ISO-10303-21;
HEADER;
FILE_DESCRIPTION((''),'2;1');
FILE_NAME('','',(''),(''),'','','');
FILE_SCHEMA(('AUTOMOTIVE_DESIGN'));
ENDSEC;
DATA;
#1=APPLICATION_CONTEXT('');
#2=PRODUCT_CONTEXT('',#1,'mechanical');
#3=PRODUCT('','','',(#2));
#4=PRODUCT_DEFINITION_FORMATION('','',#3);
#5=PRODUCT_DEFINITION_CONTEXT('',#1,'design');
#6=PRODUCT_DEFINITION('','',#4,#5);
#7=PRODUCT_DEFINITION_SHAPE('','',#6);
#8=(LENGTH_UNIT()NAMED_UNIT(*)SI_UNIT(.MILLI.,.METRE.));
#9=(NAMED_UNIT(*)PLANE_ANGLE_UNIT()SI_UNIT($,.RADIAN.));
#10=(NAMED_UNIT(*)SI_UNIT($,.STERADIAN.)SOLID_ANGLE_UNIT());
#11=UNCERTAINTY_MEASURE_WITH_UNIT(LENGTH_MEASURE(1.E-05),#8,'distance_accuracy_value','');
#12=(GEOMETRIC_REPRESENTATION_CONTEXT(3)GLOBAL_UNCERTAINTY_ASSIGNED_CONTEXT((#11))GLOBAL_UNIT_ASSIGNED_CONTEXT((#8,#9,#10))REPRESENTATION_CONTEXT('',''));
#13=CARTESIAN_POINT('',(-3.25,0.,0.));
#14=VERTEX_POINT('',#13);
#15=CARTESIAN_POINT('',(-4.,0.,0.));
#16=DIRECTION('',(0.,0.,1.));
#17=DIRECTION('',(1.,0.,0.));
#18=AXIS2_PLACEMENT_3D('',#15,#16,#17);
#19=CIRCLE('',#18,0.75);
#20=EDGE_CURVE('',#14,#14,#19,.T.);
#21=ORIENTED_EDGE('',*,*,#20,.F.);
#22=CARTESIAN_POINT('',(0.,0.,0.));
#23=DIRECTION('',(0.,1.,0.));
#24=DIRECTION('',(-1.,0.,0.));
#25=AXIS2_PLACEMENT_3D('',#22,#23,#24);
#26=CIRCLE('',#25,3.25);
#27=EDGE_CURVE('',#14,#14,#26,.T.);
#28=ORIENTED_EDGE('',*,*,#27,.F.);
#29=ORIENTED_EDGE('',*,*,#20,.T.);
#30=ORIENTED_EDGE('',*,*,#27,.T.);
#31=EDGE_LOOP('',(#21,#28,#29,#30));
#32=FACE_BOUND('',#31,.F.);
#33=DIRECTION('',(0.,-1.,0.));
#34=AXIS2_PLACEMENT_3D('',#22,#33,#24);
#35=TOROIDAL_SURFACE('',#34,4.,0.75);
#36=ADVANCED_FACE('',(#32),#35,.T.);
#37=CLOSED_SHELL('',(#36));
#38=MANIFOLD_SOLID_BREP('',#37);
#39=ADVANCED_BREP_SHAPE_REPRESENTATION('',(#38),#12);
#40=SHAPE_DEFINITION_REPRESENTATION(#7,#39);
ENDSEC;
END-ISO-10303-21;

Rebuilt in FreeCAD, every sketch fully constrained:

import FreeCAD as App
import Part
import Sketcher
Q = App.Units.Quantity

doc = App.newDocument("Part")
body = doc.addObject("PartDesign::Body", "Body")

sketch1 = body.newObject("Sketcher::SketchObject", "Sketch")
sketch1.AttachmentSupport = (doc.getObject("XY_Plane"), [""])
sketch1.MapMode = "FlatFace"
sketch1.addGeometry(Part.Circle(App.Vector(-4, 0, 0), App.Vector(0, 0, 1), 0.8), False)
sketch1.addConstraint([
    Sketcher.Constraint("PointOnObject", 0, 3, -1),
    Sketcher.Constraint("Diameter", 0, Q("1.5 mm")),
    Sketcher.Constraint("DistanceX", 0, 3, -1, 1, Q("4 mm")),
])
revolution = body.newObject("PartDesign::Revolution", "Revolution")
revolution.Profile = sketch1
revolution.ReferenceAxis = (sketch1, ["V_Axis"])
revolution.Angle = 360

doc.recompute()
